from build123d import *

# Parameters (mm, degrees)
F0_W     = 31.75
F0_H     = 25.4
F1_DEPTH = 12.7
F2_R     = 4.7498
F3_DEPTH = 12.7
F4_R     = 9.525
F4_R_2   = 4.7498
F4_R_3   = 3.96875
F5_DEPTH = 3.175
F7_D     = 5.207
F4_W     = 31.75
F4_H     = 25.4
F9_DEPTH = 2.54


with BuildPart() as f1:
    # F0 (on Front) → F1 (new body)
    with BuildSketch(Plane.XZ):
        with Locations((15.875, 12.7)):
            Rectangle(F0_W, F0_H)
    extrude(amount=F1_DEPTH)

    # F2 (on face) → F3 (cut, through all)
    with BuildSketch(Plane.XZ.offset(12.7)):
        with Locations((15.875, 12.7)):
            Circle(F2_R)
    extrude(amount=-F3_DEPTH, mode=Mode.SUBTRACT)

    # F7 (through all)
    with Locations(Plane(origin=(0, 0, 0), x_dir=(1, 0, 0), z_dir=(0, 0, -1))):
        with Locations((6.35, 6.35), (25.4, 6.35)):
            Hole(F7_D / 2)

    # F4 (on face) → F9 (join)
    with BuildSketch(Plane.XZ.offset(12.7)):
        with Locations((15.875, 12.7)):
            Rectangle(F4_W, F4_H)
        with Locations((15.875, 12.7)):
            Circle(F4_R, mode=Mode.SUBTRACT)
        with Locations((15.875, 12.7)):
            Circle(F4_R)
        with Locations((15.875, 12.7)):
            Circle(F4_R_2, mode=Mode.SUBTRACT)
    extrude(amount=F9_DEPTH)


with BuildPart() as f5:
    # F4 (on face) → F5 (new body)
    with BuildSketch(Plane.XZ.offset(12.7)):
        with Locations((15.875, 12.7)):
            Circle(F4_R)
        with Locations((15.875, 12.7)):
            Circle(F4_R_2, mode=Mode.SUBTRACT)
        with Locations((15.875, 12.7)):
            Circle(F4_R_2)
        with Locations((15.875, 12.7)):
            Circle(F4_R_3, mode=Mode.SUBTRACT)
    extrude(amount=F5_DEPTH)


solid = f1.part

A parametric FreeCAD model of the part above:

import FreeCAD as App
import Part
import Sketcher
from FreeCAD import Vector
Q = App.Units.Quantity

doc = App.newDocument("Part")
params = doc.addObject("Spreadsheet::Sheet", "Params")
for row, (alias, value) in enumerate([
    ("sketch1_height", "1 in"),
    ("sketch1_width", "1.25 in"),
    ("pad1_length", "0.5 in"),
    ("sketch2_diameter", "0.374 in"),
    ("sketch3_diameter", "0.205 in"),
    ("hole_diameter", "0.205 in"),
    ("sketch4_height", "1 in"),
    ("sketch4_diameter", "0.374 in"),
    ("sketch4_width", "1.25 in"),
    ("pad2_length", "0.1 in"),
    ("sketch5_diameter", "0.75 in"),
    ("sketch5_diameter2", "0.3125 in"),
    ("pad3_length", "0.125 in"),
], start=1):
    params.set(f"A{row}", alias)
    params.set(f"B{row}", "=" + value)
    params.setAlias(f"B{row}", alias)

body = doc.addObject("PartDesign::Body", "Body")

sketch1 = body.newObject("Sketcher::SketchObject", "Sketch")
sketch1.AttachmentSupport = (doc.getObject("XZ_Plane"), [""])
sketch1.MapMode = "FlatFace"
sketch1.addGeometry([
    Part.LineSegment(Vector(0, 25, 0), Vector(0, 0, 0)),
    Part.LineSegment(Vector(0, 0, 0), Vector(32, 0, 0)),
    Part.LineSegment(Vector(32, 0, 0), Vector(32, 25, 0)),
    Part.LineSegment(Vector(32, 25, 0), Vector(0, 25, 0)),
], False)
sketch1.addConstraint([
    Sketcher.Constraint("Coincident", 0, 2, 1, 1),
    Sketcher.Constraint("Coincident", 1, 2, 2, 1),
    Sketcher.Constraint("Coincident", 2, 2, 3, 1),
    Sketcher.Constraint("Coincident", 3, 2, 0, 1),
    Sketcher.Constraint("Vertical", 0),
    Sketcher.Constraint("Horizontal", 1),
    Sketcher.Constraint("Vertical", 2),
    Sketcher.Constraint("Horizontal", 3),
    Sketcher.Constraint("Coincident", 0, 2, -1, 1),
    Sketcher.Constraint("DistanceY", 0, 2, 0, 1, Q("1 in")),
    Sketcher.Constraint("DistanceX", 1, 1, 1, 2, Q("1.25 in")),
])
sketch1.setExpression("Constraints[9]", "Params.sketch1_height")
sketch1.setExpression("Constraints[10]", "Params.sketch1_width")
pad1 = body.newObject("PartDesign::Pad", "Pad")
pad1.Profile = sketch1
pad1.setExpression("Length", "Params.pad1_length")

sketch2 = body.newObject("Sketcher::SketchObject", "Sketch001")
sketch2.AttachmentSupport = (doc.getObject("XZ_Plane"), [""])
sketch2.MapMode = "FlatFace"
sketch2.AttachmentOffset = App.Placement(Vector(0, 0, 0.5 * 25.4), App.Rotation())
sketch2.addGeometry(Part.Circle(Vector(15.9, 12.7, 0), Vector(0, 0, 1), 4.7), False)
sketch2.addConstraint([
    Sketcher.Constraint("Diameter", 0, Q("0.374 in")),
    Sketcher.Constraint("DistanceY", -1, 1, 0, 3, Q("0.5 in")),
    Sketcher.Constraint("DistanceX", -1, 1, 0, 3, Q("0.625 in")),
])
sketch2.setExpression("Constraints[0]", "Params.sketch2_diameter")
pocket1 = body.newObject("PartDesign::Pocket", "Pocket")
pocket1.Profile = sketch2
pocket1.Type = "ThroughAll"

sketch3 = body.newObject("Sketcher::SketchObject", "Sketch002")
sketch3.AttachmentSupport = (doc.getObject("XY_Plane"), [""])
sketch3.MapMode = "FlatFace"
sketch3.addGeometry([
    Part.Circle(Vector(6.3, -6.3, 0), Vector(0, 0, 1), 2.6),
    Part.Circle(Vector(25.4, -6.3, 0), Vector(0, 0, 1), 2.6),
], False)
sketch3.addConstraint([
    Sketcher.Constraint("Equal", 0, 1),
    Sketcher.Constraint("Horizontal", 0, 3, 1, 3),
    Sketcher.Constraint("Diameter", 0, Q("0.205 in")),
    Sketcher.Constraint("DistanceX", -1, 1, 1, 3, Q("1 in")),
    Sketcher.Constraint("DistanceX", -1, 1, 0, 3, Q("0.25 in")),
    Sketcher.Constraint("DistanceY", 0, 3, -1, 1, Q("0.25 in")),
])
sketch3.setExpression("Constraints[2]", "Params.sketch3_diameter")
doc.recompute()
hole = body.newObject("PartDesign::Hole", "Hole")
hole.Profile = sketch3
hole.ThreadType = "None"
hole.setExpression("Diameter", "Params.hole_diameter")
hole.DepthType = "ThroughAll"
hole.Reversed = True

sketch4 = body.newObject("Sketcher::SketchObject", "Sketch003")
sketch4.AttachmentSupport = (doc.getObject("XZ_Plane"), [""])
sketch4.MapMode = "FlatFace"
sketch4.AttachmentOffset = App.Placement(Vector(0, 0, 0.5 * 25.4), App.Rotation())
sketch4.addGeometry([
    Part.LineSegment(Vector(0, 25.4, 0), Vector(0, 0, 0)),
    Part.LineSegment(Vector(0, 0, 0), Vector(31.8, 0, 0)),
    Part.LineSegment(Vector(31.8, 0, 0), Vector(31.8, 25.4, 0)),
    Part.LineSegment(Vector(31.8, 25.4, 0), Vector(0, 25.4, 0)),
    Part.Circle(Vector(15.9, 12.7, 0), Vector(0, 0, 1), 4.7),
], False)
sketch4.addConstraint([
    Sketcher.Constraint("Coincident", 0, 2, 1, 1),
    Sketcher.Constraint("Coincident", 1, 2, 2, 1),
    Sketcher.Constraint("Coincident", 2, 2, 3, 1),
    Sketcher.Constraint("Coincident", 3, 2, 0, 1),
    Sketcher.Constraint("Vertical", 0),
    Sketcher.Constraint("Horizontal", 1),
    Sketcher.Constraint("Vertical", 2),
    Sketcher.Constraint("Horizontal", 3),
    Sketcher.Constraint("Coincident", 0, 2, -1, 1),
    Sketcher.Constraint("DistanceY", 0, 2, 0, 1, Q("1 in")),
    Sketcher.Constraint("Diameter", 4, Q("0.374 in")),
    Sketcher.Constraint("DistanceX", 1, 1, 1, 2, Q("1.25 in")),
    Sketcher.Constraint("DistanceY", -1, 1, 4, 3, Q("0.5 in")),
    Sketcher.Constraint("DistanceX", -1, 1, 4, 3, Q("0.625 in")),
])
sketch4.setExpression("Constraints[9]", "Params.sketch4_height")
sketch4.setExpression("Constraints[10]", "Params.sketch4_diameter")
sketch4.setExpression("Constraints[11]", "Params.sketch4_width")
pad2 = body.newObject("PartDesign::Pad", "Pad001")
pad2.Profile = sketch4
pad2.setExpression("Length", "Params.pad2_length")
body2 = doc.addObject("PartDesign::Body", "Body001")

sketch5 = body2.newObject("Sketcher::SketchObject", "Sketch004")
sketch5.AttachmentSupport = (doc.getObject("XZ_Plane001"), [""])
sketch5.MapMode = "FlatFace"
sketch5.AttachmentOffset = App.Placement(Vector(0, 0, 0.5 * 25.4), App.Rotation())
sketch5.addGeometry([
    Part.Circle(Vector(15.9, 12.7, 0), Vector(0, 0, 1), 9.5),
    Part.Circle(Vector(15.9, 12.7, 0), Vector(0, 0, 1), 4),
], False)
sketch5.addConstraint([
    Sketcher.Constraint("Coincident", 1, 3, 0, 3),
    Sketcher.Constraint("Diameter", 0, Q("0.75 in")),
    Sketcher.Constraint("Diameter", 1, Q("0.3125 in")),
    Sketcher.Constraint("DistanceY", -1, 1, 0, 3, Q("0.5 in")),
    Sketcher.Constraint("DistanceX", -1, 1, 0, 3, Q("0.625 in")),
])
sketch5.setExpression("Constraints[1]", "Params.sketch5_diameter")
sketch5.setExpression("Constraints[2]", "Params.sketch5_diameter2")
pad3 = body2.newObject("PartDesign::Pad", "Pad002")
pad3.Profile = sketch5
pad3.setExpression("Length", "Params.pad3_length")
body2.Visibility = False

doc.recompute()
